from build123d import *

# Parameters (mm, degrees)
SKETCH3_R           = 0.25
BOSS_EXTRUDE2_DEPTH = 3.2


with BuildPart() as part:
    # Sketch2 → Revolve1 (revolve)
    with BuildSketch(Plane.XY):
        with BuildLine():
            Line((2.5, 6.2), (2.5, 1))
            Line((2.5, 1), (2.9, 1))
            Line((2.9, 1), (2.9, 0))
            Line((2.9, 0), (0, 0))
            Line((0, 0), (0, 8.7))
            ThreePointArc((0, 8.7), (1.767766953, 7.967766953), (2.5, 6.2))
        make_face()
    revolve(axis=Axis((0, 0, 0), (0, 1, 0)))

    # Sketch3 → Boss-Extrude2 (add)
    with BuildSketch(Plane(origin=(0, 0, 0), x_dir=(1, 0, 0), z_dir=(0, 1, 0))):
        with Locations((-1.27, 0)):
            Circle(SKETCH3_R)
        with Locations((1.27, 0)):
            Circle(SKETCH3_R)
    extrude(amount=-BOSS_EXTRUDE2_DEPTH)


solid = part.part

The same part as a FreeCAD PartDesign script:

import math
import FreeCAD as App
import Part
import Sketcher
from FreeCAD import Vector
Q = App.Units.Quantity

doc = App.newDocument("Part")
body = doc.addObject("PartDesign::Body", "Body")

# Sketch on XY plane
sketch1 = doc.addObject("Sketcher::SketchObject", "Sketch")
body.addObject(sketch1)
sketch1.AttachmentSupport = (doc.XY_Plane, [""])
sketch1.MapMode = "FlatFace"
sketch1.addGeometry(Part.LineSegment(Vector(2.5, 1, 0), Vector(2.5, 6.2, 0)), False)
sketch1.addGeometry(Part.ArcOfCircle(Part.Circle(Vector(0, 6.2, 0), Vector(0, 0, 1), 2.5), math.radians(0), math.radians(90)), False)
sketch1.addGeometry(Part.LineSegment(Vector(0, 8.7, 0), Vector(0, 0, 0)), False)
sketch1.addGeometry(Part.LineSegment(Vector(0, 0, 0), Vector(2.9, 0, 0)), False)
sketch1.addGeometry(Part.LineSegment(Vector(2.9, 0, 0), Vector(2.9, 1, 0)), False)
sketch1.addGeometry(Part.LineSegment(Vector(2.9, 1, 0), Vector(2.5, 1, 0)), False)
sketch1.addConstraint(Sketcher.Constraint("Tangent", 0, 2, 1, 1))
sketch1.addConstraint(Sketcher.Constraint("Coincident", 1, 2, 2, 1))
sketch1.addConstraint(Sketcher.Constraint("Coincident", 2, 2, 3, 1))
sketch1.addConstraint(Sketcher.Constraint("Coincident", 3, 2, 4, 1))
sketch1.addConstraint(Sketcher.Constraint("Coincident", 4, 2, 5, 1))
sketch1.addConstraint(Sketcher.Constraint("Coincident", 5, 2, 0, 1))
sketch1.addConstraint(Sketcher.Constraint("Vertical", 0))
sketch1.addConstraint(Sketcher.Constraint("Vertical", 2))
sketch1.addConstraint(Sketcher.Constraint("Horizontal", 3))
sketch1.addConstraint(Sketcher.Constraint("Vertical", 4))
sketch1.addConstraint(Sketcher.Constraint("Horizontal", 5))
sketch1.addConstraint(Sketcher.Constraint("Coincident", 2, 2, -1, 1))
sketch1.addConstraint(Sketcher.Constraint("PointOnObject", 1, 3, -2))
sketch1.addConstraint(Sketcher.Constraint("Radius", 1, Q("2.5 mm")))
sketch1.addConstraint(Sketcher.Constraint("DistanceY", 4, 1, 4, 2, Q("1 mm")))
sketch1.addConstraint(Sketcher.Constraint("DistanceX", 3, 1, 3, 2, Q("2.9 mm")))
sketch1.addConstraint(Sketcher.Constraint("DistanceY", 0, 1, 0, 2, Q("5.2 mm")))
revolution = doc.addObject("PartDesign::Revolution", "Revolution")
body.addObject(revolution)
revolution.Profile = sketch1
revolution.ReferenceAxis = (sketch1, ["V_Axis"])
revolution.Angle = 360

# Sketch on XZ plane
sketch2 = doc.addObject("Sketcher::SketchObject", "Sketch001")
body.addObject(sketch2)
sketch2.AttachmentSupport = (doc.XZ_Plane, [""])
sketch2.MapMode = "FlatFace"
sketch2.addGeometry(Part.Circle(Vector(-1.27, 0, 0), Vector(0, 0, 1), 0.25), False)
sketch2.addGeometry(Part.Circle(Vector(1.27, 0, 0), Vector(0, 0, 1), 0.25), False)
sketch2.addConstraint(Sketcher.Constraint("Equal", 0, 1))
sketch2.addConstraint(Sketcher.Constraint("Symmetric", 0, 3, 1, 3, -1, 1))
sketch2.addConstraint(Sketcher.Constraint("PointOnObject", 0, 3, -1))
sketch2.addConstraint(Sketcher.Constraint("Diameter", 0, Q("0.5 mm")))
sketch2.addConstraint(Sketcher.Constraint("DistanceX", 0, 3, -1, 1, Q("1.27 mm")))
pad1 = doc.addObject("PartDesign::Pad", "Pad")
body.addObject(pad1)
pad1.Profile = sketch2
pad1.Length = 3.2

doc.recompute()
